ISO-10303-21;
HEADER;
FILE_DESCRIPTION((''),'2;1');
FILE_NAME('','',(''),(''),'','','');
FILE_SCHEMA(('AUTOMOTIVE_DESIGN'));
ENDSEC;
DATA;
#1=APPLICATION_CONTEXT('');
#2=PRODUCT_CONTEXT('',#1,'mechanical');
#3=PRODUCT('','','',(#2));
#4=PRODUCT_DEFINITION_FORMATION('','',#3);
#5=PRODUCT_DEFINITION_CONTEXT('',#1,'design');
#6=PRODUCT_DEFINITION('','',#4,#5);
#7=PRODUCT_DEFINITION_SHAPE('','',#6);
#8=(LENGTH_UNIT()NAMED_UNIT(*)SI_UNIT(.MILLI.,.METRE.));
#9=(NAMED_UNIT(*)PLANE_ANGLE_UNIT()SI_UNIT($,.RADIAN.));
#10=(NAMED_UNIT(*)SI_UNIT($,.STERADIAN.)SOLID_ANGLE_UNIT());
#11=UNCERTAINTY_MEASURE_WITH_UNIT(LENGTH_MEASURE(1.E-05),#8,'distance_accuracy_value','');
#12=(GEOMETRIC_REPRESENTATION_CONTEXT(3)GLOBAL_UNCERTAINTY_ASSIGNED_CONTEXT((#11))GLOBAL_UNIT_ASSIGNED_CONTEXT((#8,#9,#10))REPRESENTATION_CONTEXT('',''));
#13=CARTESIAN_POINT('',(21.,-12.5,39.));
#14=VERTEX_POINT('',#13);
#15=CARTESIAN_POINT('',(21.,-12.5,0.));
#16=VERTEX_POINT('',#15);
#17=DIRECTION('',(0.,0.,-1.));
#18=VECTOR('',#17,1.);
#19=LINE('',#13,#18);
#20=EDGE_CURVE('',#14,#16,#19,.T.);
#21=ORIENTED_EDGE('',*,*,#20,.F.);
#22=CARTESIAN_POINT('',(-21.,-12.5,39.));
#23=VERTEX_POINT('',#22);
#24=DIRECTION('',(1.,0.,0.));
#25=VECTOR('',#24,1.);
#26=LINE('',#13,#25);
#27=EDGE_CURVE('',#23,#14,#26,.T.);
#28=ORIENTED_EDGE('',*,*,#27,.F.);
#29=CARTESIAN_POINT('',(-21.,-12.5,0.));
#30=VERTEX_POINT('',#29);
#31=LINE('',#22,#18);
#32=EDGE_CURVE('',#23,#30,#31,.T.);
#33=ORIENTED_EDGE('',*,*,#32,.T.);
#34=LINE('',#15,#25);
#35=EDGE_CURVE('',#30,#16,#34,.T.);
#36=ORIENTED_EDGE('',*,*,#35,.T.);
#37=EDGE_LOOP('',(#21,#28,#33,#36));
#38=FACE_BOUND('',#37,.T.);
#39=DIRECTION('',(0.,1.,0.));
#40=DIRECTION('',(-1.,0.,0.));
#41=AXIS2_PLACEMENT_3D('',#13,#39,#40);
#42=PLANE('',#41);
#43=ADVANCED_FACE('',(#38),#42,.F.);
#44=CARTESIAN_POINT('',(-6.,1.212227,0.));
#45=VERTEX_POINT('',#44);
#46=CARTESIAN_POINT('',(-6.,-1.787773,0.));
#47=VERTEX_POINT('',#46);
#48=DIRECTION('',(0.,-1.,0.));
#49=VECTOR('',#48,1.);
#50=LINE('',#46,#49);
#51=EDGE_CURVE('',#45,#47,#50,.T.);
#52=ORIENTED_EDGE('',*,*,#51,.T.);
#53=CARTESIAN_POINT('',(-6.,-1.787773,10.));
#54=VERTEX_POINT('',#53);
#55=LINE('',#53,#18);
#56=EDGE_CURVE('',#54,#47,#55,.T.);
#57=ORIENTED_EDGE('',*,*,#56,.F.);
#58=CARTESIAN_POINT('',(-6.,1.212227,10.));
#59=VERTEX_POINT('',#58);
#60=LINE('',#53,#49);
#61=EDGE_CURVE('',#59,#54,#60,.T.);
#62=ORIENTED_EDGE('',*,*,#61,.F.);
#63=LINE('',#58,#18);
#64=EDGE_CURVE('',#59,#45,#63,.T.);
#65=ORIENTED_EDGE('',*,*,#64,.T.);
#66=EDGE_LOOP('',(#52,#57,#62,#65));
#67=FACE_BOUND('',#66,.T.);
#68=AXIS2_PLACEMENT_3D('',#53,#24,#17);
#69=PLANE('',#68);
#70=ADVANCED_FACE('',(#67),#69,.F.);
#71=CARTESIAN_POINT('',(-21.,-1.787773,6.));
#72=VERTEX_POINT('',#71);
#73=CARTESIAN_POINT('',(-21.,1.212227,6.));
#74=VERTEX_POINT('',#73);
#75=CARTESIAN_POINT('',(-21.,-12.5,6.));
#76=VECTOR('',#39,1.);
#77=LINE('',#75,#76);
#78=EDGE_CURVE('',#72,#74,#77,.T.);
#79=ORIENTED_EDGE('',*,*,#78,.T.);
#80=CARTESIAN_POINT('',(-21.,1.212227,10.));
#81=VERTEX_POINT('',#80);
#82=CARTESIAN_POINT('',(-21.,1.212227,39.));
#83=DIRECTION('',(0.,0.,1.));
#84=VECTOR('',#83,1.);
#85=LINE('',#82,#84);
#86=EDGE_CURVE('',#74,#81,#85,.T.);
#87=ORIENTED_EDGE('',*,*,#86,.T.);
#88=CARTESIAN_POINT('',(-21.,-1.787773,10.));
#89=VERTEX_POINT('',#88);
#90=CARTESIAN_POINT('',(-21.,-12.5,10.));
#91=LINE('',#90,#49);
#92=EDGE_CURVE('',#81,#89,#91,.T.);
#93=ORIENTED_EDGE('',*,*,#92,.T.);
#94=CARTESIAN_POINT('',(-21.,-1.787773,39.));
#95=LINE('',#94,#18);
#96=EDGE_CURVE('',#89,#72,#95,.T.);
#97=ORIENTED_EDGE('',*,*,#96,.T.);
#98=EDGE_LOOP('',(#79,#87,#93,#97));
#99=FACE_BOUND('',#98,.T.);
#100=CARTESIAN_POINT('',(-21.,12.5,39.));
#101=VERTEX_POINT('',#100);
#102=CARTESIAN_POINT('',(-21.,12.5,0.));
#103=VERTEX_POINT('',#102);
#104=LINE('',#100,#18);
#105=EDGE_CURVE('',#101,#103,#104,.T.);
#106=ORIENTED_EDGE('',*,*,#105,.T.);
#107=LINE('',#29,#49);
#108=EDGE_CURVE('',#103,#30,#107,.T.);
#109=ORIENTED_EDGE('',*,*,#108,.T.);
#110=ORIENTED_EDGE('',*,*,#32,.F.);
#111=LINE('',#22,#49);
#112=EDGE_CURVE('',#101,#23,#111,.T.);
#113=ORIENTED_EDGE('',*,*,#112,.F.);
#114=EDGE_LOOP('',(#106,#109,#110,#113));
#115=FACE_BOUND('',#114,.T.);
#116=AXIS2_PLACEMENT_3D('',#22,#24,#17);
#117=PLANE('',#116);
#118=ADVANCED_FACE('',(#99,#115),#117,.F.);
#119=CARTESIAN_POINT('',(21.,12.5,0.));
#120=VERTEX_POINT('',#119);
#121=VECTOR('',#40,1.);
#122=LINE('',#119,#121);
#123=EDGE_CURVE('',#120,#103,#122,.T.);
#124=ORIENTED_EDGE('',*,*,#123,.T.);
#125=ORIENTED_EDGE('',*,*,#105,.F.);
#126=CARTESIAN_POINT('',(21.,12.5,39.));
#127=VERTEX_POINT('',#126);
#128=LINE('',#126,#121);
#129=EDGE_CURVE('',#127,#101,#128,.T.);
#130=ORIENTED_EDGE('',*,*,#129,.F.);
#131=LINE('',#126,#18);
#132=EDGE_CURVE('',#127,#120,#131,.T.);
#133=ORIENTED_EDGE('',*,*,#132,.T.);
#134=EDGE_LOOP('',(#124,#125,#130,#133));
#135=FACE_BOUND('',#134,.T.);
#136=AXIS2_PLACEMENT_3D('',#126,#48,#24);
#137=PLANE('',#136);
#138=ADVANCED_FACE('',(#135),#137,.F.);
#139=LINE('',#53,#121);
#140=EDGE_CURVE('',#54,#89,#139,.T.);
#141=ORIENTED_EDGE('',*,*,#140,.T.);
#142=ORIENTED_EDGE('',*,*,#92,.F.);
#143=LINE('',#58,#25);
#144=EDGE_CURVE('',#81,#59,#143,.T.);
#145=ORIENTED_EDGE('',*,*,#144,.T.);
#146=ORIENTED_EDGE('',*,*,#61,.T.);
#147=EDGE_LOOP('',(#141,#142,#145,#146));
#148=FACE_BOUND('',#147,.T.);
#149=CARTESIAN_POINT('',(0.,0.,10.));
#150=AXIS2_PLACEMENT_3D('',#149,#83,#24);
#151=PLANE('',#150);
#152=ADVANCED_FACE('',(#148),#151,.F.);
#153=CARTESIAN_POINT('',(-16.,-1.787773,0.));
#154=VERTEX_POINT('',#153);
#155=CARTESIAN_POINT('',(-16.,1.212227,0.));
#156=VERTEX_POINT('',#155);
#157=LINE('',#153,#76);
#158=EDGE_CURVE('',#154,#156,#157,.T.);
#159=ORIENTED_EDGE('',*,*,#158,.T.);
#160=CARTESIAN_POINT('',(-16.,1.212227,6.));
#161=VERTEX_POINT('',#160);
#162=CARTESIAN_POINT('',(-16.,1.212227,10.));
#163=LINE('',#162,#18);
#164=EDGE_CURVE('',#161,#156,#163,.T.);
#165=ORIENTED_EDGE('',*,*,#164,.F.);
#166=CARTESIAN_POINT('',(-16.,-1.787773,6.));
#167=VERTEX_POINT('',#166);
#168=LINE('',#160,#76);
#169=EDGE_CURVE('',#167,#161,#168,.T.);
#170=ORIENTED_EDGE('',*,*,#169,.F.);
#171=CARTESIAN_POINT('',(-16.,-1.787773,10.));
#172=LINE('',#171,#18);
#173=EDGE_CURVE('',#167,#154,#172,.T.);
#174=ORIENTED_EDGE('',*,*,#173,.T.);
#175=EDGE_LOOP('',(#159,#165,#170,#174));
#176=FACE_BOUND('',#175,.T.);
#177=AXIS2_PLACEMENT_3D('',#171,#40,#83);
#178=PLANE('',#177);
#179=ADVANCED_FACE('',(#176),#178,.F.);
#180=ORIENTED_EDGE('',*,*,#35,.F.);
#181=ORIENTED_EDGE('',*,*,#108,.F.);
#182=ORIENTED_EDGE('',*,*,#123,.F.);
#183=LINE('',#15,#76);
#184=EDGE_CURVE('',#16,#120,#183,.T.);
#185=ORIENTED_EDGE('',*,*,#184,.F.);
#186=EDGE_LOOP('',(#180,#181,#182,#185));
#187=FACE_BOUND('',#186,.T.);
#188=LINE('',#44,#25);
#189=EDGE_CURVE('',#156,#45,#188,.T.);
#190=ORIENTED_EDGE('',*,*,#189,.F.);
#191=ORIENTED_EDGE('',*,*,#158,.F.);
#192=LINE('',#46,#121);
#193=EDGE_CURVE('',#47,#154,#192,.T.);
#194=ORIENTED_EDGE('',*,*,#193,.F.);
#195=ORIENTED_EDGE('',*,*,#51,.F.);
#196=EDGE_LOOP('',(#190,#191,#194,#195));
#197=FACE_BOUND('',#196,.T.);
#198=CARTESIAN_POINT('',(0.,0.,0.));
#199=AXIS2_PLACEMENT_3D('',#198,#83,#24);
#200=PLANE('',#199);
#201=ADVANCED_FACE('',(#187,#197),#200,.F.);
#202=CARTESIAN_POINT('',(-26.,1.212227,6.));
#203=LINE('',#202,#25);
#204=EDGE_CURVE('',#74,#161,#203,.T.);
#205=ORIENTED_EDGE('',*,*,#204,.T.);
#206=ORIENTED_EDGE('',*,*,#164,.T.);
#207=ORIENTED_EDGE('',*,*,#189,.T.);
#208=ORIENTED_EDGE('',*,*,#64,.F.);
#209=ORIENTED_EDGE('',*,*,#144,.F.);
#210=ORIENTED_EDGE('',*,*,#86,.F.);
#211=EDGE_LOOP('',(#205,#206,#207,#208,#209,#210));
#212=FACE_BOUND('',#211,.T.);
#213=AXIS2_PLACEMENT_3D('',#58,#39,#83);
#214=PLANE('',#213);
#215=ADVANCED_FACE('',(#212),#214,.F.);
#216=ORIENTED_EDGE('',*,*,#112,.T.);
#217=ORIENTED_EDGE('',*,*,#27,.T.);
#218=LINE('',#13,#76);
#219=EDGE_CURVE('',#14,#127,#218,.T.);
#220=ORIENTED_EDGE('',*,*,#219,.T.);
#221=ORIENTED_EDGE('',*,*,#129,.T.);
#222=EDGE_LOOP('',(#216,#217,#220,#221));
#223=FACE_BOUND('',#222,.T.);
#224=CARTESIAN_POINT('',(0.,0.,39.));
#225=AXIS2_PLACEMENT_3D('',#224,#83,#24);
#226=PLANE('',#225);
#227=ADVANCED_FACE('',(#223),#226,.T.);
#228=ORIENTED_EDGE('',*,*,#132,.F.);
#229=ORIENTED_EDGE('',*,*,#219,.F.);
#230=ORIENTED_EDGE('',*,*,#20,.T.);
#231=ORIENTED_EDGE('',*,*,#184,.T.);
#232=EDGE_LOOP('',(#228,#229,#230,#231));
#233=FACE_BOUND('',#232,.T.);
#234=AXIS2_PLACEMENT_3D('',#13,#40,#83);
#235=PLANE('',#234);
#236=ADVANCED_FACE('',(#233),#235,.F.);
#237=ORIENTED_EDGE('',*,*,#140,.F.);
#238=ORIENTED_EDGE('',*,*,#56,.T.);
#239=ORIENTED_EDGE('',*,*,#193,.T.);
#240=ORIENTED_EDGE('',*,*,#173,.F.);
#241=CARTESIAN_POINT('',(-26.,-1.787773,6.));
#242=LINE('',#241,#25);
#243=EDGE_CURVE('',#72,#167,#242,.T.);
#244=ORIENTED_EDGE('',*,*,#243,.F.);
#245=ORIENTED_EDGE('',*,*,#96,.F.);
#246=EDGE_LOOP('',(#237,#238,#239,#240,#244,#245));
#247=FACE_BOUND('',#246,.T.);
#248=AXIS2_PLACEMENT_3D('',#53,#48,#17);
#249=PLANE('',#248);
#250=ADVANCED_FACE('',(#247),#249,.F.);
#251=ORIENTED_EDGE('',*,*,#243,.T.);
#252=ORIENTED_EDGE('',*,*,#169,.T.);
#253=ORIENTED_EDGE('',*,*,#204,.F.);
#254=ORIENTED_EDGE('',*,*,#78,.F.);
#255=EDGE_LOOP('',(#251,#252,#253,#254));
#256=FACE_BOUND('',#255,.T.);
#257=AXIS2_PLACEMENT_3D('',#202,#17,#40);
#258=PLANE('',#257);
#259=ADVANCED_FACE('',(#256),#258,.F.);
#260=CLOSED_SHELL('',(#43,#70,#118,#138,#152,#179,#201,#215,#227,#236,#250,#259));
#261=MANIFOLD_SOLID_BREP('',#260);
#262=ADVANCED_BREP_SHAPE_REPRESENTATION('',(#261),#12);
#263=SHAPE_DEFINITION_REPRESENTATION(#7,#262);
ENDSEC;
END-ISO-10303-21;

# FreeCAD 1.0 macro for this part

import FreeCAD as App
import Part
import Sketcher

V = App.Vector
Q = App.Units.Quantity

doc = App.newDocument("Part")
body = doc.addObject("PartDesign::Body", "Body")

sketch1 = body.newObject("Sketcher::SketchObject", "Sketch")
sketch1.AttachmentSupport = (doc.getObject("XY_Plane"), [""])
sketch1.MapMode = "FlatFace"
sketch1.addGeometry(Part.LineSegment(V(-21, 12, 0), V(-21, -12, 0)), False)
sketch1.addGeometry(Part.LineSegment(V(-21, -12, 0), V(21, -12, 0)), False)
sketch1.addGeometry(Part.LineSegment(V(21, -12, 0), V(21, 12, 0)), False)
sketch1.addGeometry(Part.LineSegment(V(21, 12, 0), V(-21, 12, 0)), False)
sketch1.addConstraint(Sketcher.Constraint("Coincident", 0, 2, 1, 1))
sketch1.addConstraint(Sketcher.Constraint("Coincident", 1, 2, 2, 1))
sketch1.addConstraint(Sketcher.Constraint("Coincident", 2, 2, 3, 1))
sketch1.addConstraint(Sketcher.Constraint("Coincident", 3, 2, 0, 1))
sketch1.addConstraint(Sketcher.Constraint("Vertical", 0))
sketch1.addConstraint(Sketcher.Constraint("Horizontal", 1))
sketch1.addConstraint(Sketcher.Constraint("Vertical", 2))
sketch1.addConstraint(Sketcher.Constraint("Horizontal", 3))
sketch1.addConstraint(Sketcher.Constraint("Symmetric", 0, 2, 2, 2, -1, 1))
sketch1.addConstraint(Sketcher.Constraint("DistanceX", 1, 1, 1, 2, Q("42 mm")))
sketch1.addConstraint(Sketcher.Constraint("DistanceY", 0, 2, 0, 1, Q("25 mm")))
pad1 = body.newObject("PartDesign::Pad", "Pad")
pad1.Profile = sketch1
pad1.Length = 39

sketch2 = body.newObject("Sketcher::SketchObject", "Sketch001")
sketch2.AttachmentSupport = (doc.getObject("XY_Plane"), [""])
sketch2.MapMode = "FlatFace"
sketch2.addGeometry(Part.LineSegment(V(-6, 1.2, 0), V(-6, -1.8, 0)), False)
sketch2.addGeometry(Part.LineSegment(V(-6, -1.8, 0), V(-16, -1.8, 0)), False)
sketch2.addGeometry(Part.LineSegment(V(-16, -1.8, 0), V(-16, 1.2, 0)), False)
sketch2.addGeometry(Part.LineSegment(V(-16, 1.2, 0), V(-6, 1.2, 0)), False)
sketch2.addConstraint(Sketcher.Constraint("Coincident", 0, 2, 1, 1))
sketch2.addConstraint(Sketcher.Constraint("Coincident", 1, 2, 2, 1))
sketch2.addConstraint(Sketcher.Constraint("Coincident", 2, 2, 3, 1))
sketch2.addConstraint(Sketcher.Constraint("Coincident", 3, 2, 0, 1))
sketch2.addConstraint(Sketcher.Constraint("Vertical", 0))
sketch2.addConstraint(Sketcher.Constraint("Horizontal", 1))
sketch2.addConstraint(Sketcher.Constraint("Vertical", 2))
sketch2.addConstraint(Sketcher.Constraint("Horizontal", 3))
sketch2.addConstraint(Sketcher.Constraint("DistanceX", 1, 2, 1, 1, Q("10 mm")))
sketch2.addConstraint(Sketcher.Constraint("DistanceY", 0, 2, 0, 1, Q("3 mm")))
sketch2.addConstraint(Sketcher.Constraint("DistanceX", 0, 2, -1, 1, Q("6 mm")))
sketch2.addConstraint(Sketcher.Constraint("DistanceY", 0, 2, -1, 1, Q("1.787773 mm")))
pocket1 = body.newObject("PartDesign::Pocket", "Pocket")
pocket1.Profile = sketch2
pocket1.Length = 10
pocket1.Reversed = True

sketch3 = body.newObject("Sketcher::SketchObject", "Sketch002")
sketch3.AttachmentSupport = (doc.getObject("YZ_Plane"), [""])
sketch3.MapMode = "FlatFace"
sketch3.AttachmentOffset = App.Placement(V(0, 0, -16), App.Rotation())
sketch3.addGeometry(Part.LineSegment(V(1.2, 10, 0), V(-1.8, 10, 0)), False)
sketch3.addGeometry(Part.LineSegment(V(-1.8, 10, 0), V(-1.8, 6, 0)), False)
sketch3.addGeometry(Part.LineSegment(V(-1.8, 6, 0), V(1.2, 6, 0)), False)
sketch3.addGeometry(Part.LineSegment(V(1.2, 6, 0), V(1.2, 10, 0)), False)
sketch3.addConstraint(Sketcher.Constraint("Coincident", 0, 2, 1, 1))
sketch3.addConstraint(Sketcher.Constraint("Coincident", 1, 2, 2, 1))
sketch3.addConstraint(Sketcher.Constraint("Coincident", 2, 2, 3, 1))
sketch3.addConstraint(Sketcher.Constraint("Coincident", 3, 2, 0, 1))
sketch3.addConstraint(Sketcher.Constraint("Horizontal", 0))
sketch3.addConstraint(Sketcher.Constraint("Vertical", 1))
sketch3.addConstraint(Sketcher.Constraint("Horizontal", 2))
sketch3.addConstraint(Sketcher.Constraint("Vertical", 3))
sketch3.addConstraint(Sketcher.Constraint("DistanceX", 0, 2, 0, 1, Q("3 mm")))
sketch3.addConstraint(Sketcher.Constraint("DistanceY", 1, 2, 1, 1, Q("4 mm")))
sketch3.addConstraint(Sketcher.Constraint("DistanceY", -1, 1, 0, 2, Q("10 mm")))
sketch3.addConstraint(Sketcher.Constraint("DistanceX", 0, 2, -1, 1, Q("1.787773 mm")))
pocket2 = body.newObject("PartDesign::Pocket", "Pocket001")
pocket2.Profile = sketch3
pocket2.Length = 10

doc.recompute()
